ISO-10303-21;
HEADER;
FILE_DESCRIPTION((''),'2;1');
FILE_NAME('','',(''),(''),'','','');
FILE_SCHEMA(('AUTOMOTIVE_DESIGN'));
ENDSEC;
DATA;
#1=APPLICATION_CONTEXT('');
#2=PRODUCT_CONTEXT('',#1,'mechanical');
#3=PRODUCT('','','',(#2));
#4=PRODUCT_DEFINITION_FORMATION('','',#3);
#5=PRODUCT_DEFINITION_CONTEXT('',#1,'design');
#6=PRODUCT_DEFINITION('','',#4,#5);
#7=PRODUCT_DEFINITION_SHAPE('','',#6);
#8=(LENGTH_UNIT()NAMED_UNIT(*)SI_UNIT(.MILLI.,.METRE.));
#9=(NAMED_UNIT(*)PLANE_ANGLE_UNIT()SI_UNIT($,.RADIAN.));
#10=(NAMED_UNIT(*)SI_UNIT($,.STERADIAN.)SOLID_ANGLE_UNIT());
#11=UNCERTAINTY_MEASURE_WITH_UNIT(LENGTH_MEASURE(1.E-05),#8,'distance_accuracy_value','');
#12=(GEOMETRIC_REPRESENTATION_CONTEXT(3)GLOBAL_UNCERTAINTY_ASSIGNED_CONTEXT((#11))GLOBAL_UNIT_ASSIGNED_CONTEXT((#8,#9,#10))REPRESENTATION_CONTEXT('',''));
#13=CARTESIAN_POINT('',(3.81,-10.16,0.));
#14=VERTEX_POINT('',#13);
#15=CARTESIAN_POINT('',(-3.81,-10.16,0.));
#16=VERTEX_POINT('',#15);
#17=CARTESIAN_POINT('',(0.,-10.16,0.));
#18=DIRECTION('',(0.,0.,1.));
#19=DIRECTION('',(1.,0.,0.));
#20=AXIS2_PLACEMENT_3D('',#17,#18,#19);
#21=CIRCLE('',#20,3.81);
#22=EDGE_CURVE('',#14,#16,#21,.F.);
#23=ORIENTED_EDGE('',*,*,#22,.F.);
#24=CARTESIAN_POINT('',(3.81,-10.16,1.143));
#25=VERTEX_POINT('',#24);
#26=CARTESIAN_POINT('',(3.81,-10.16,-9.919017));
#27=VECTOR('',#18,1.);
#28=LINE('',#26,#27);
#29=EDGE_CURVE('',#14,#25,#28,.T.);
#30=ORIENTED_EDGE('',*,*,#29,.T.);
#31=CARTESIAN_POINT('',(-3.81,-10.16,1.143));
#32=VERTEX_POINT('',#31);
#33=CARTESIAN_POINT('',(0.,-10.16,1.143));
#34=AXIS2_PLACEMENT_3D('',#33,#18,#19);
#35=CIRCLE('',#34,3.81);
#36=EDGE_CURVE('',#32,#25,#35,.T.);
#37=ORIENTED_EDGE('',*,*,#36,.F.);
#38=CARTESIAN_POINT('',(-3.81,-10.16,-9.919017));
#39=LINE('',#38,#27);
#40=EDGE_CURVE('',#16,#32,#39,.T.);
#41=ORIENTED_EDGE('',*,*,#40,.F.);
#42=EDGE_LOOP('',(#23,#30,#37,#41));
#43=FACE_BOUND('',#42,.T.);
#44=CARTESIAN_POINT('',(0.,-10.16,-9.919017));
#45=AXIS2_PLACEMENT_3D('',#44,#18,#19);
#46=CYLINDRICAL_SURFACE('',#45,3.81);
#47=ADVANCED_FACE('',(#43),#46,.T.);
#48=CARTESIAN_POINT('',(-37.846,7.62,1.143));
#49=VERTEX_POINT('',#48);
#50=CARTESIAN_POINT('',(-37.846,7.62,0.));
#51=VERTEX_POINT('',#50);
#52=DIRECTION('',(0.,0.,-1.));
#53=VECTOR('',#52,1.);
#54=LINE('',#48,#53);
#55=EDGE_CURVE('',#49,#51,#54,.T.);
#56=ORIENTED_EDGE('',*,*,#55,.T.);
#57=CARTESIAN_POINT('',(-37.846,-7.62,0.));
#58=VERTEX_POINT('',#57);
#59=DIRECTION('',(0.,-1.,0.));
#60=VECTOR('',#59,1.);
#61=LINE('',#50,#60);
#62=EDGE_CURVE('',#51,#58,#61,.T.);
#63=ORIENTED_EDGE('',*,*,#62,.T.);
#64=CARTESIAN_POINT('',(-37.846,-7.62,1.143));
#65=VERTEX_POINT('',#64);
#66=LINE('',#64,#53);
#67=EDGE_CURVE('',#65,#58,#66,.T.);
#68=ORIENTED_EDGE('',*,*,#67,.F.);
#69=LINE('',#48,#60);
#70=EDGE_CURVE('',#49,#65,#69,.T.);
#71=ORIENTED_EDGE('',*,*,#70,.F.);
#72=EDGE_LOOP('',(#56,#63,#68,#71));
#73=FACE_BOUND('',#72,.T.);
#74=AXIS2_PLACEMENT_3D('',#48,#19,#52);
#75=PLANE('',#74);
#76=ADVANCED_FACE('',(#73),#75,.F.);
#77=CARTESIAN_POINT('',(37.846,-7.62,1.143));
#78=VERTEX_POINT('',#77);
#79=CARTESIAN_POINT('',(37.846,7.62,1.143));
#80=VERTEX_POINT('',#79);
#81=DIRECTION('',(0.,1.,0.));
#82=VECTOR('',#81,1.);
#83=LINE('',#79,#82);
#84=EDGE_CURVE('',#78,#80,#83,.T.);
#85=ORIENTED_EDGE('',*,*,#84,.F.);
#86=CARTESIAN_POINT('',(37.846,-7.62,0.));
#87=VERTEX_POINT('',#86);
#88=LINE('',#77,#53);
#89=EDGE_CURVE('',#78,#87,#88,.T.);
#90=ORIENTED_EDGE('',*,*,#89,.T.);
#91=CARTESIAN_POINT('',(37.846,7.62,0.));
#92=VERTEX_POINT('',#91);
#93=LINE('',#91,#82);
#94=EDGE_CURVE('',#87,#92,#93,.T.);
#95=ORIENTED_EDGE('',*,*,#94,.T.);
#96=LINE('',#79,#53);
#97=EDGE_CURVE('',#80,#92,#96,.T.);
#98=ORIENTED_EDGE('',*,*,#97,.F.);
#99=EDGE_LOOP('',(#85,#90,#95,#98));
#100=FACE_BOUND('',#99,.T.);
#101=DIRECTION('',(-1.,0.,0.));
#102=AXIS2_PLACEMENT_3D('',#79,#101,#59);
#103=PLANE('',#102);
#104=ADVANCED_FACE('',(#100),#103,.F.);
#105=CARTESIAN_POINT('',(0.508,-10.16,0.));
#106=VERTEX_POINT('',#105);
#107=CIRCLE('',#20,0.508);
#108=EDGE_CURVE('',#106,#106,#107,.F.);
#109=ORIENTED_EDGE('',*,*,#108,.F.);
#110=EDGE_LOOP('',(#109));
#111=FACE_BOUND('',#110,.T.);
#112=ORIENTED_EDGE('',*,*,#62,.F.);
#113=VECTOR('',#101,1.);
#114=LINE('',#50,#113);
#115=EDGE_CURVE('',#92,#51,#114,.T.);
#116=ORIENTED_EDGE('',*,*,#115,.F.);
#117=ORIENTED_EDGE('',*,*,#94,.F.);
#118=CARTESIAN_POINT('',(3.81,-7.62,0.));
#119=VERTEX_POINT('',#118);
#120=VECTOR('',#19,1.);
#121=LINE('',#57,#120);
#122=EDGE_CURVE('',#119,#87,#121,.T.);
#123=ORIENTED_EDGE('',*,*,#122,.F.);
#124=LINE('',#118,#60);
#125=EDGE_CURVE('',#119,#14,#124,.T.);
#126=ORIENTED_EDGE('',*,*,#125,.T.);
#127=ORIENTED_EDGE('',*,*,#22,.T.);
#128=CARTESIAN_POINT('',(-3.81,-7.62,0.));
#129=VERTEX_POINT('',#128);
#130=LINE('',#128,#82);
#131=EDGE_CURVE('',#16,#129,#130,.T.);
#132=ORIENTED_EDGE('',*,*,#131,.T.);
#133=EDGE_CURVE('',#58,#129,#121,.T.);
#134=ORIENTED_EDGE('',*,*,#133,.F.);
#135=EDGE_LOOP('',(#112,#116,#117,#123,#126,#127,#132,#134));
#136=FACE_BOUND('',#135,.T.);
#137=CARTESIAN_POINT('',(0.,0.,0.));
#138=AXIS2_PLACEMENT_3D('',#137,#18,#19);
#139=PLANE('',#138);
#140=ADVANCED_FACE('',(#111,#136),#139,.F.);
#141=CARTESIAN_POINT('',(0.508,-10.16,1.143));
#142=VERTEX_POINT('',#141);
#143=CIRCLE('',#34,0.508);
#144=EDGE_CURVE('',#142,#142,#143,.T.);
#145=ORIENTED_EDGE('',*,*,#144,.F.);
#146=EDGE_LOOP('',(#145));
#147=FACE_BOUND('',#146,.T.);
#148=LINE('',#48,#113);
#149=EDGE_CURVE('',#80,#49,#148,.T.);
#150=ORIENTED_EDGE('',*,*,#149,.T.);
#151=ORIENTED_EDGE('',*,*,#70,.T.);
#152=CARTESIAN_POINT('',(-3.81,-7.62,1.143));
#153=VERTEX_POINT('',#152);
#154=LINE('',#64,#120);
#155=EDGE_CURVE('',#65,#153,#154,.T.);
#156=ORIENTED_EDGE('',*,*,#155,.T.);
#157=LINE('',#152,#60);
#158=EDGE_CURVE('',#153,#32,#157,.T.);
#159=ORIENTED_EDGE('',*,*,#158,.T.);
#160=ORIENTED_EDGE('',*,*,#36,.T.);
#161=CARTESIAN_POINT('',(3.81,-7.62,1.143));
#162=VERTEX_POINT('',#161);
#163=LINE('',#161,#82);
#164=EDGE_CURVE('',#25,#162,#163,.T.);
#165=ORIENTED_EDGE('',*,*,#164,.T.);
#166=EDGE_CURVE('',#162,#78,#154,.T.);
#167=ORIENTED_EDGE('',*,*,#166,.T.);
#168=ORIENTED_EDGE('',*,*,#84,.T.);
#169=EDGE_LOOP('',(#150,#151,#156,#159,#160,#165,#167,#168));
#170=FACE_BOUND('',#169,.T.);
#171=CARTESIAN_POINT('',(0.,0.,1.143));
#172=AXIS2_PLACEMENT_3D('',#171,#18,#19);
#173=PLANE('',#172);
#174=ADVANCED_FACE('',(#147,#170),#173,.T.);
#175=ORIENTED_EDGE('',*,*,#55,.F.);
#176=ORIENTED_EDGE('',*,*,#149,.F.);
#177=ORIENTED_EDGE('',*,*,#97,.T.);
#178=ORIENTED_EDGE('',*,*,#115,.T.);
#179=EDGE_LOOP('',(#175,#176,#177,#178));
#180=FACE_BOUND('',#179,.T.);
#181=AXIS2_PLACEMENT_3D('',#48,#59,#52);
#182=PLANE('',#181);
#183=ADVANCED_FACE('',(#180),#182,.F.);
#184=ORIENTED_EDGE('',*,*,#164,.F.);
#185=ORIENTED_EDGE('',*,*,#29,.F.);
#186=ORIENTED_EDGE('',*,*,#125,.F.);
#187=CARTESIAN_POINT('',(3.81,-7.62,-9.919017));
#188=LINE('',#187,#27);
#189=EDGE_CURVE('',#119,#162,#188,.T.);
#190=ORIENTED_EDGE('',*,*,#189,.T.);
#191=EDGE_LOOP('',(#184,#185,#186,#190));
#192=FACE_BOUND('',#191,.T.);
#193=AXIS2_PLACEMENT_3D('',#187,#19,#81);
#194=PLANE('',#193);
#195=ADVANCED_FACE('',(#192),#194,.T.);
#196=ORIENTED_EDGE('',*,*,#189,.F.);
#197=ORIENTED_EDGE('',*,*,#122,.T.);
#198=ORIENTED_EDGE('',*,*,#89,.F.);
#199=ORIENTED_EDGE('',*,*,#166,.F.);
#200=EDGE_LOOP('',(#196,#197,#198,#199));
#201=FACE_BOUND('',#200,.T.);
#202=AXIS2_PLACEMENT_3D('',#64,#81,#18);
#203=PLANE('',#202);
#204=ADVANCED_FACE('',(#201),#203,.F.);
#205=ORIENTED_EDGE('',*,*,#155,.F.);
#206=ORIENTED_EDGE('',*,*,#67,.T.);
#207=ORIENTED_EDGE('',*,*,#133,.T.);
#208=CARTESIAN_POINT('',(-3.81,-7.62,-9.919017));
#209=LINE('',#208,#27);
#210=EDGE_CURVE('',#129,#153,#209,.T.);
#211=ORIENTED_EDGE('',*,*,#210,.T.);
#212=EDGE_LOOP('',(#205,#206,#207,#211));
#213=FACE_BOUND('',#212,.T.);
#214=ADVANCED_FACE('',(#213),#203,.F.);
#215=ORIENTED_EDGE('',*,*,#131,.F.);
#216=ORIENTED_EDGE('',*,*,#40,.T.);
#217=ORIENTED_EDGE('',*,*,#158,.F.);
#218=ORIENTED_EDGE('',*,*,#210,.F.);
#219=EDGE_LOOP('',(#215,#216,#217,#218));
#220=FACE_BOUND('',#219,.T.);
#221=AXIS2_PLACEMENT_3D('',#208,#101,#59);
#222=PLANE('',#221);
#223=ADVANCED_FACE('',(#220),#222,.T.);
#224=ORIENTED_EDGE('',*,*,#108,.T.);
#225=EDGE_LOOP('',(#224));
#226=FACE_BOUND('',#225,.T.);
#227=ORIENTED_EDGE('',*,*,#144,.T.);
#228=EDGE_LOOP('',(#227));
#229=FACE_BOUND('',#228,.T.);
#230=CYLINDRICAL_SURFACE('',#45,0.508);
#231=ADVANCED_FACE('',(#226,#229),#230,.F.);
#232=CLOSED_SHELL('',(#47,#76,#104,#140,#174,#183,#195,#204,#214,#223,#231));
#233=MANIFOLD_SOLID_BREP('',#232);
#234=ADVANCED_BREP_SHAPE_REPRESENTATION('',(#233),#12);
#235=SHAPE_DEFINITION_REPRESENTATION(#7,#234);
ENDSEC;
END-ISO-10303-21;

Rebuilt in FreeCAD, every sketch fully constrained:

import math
import FreeCAD as App
import Part
import Sketcher
Q = App.Units.Quantity


def add_polygon(sketch, points):
    """Adds a closed chain of lines whose ends are joined by coincident constraints."""
    first, n = sketch.GeometryCount, len(points)
    for a, b in zip(points, points[1:] + points[:1]):
        sketch.addGeometry(Part.LineSegment(App.Vector(*a, 0), App.Vector(*b, 0)), False)
    for i in range(n):
        sketch.addConstraint(Sketcher.Constraint("Coincident", first + i, 2, first + (i + 1) % n, 1))

doc = App.newDocument("Part")
body = doc.addObject("PartDesign::Body", "Body")

# Sketch on XY plane
sketch1 = body.newObject("Sketcher::SketchObject", "Sketch")
sketch1.AttachmentSupport = (doc.getObject("XY_Plane"), [""])
sketch1.MapMode = "FlatFace"
add_polygon(sketch1, [(-37.846, 7.62), (-37.846, -7.62), (37.846, -7.62), (37.846, 7.62)])  # lines 0-3
sketch1.addConstraint([
    Sketcher.Constraint("Vertical", 0),
    Sketcher.Constraint("Horizontal", 1),
    Sketcher.Constraint("Vertical", 2),
    Sketcher.Constraint("Horizontal", 3),
    Sketcher.Constraint("Symmetric", 0, 2, 2, 2, -1, 1),
    Sketcher.Constraint("DistanceY", 0, 2, 0, 1, Q("0.6 in")),
    Sketcher.Constraint("DistanceX", 1, 1, 1, 2, Q("2.98 in")),
])
pad1 = body.newObject("PartDesign::Pad", "Pad")
pad1.Profile = sketch1
pad1.Length = Q("0.045 in")

# Sketch on XY plane
sketch2 = body.newObject("Sketcher::SketchObject", "Sketch001")
sketch2.AttachmentSupport = (doc.getObject("XY_Plane"), [""])
sketch2.MapMode = "FlatFace"
sketch2.AttachmentOffset = App.Placement(App.Vector(0, 0, 0.045 * 25.4), App.Rotation())
sketch2.addGeometry([
    Part.LineSegment(App.Vector(3.81, -7.62, 0), App.Vector(-3.81, -7.62, 0)),  # 0
    Part.LineSegment(App.Vector(-3.81, -7.62, 0), App.Vector(-3.81, -10.16, 0)),  # 1
    Part.ArcOfCircle(Part.Circle(App.Vector(0, -10.16, 0), App.Vector(0, 0, 1), 3.81), math.radians(180), math.radians(360)),  # 2
    Part.LineSegment(App.Vector(3.81, -10.16, 0), App.Vector(3.81, -7.62, 0)),  # 3
    Part.Circle(App.Vector(0, -10.16, 0), App.Vector(0, 0, 1), 0.508),  # 4
], False)
sketch2.addConstraint([
    Sketcher.Constraint("Coincident", 0, 2, 1, 1),
    Sketcher.Constraint("Tangent", 1, 2, 2, 1),
    Sketcher.Constraint("Tangent", 2, 2, 3, 1),
    Sketcher.Constraint("Coincident", 3, 2, 0, 1),
    Sketcher.Constraint("Horizontal", 0),
    Sketcher.Constraint("Vertical", 1),
    Sketcher.Constraint("Vertical", 3),
    Sketcher.Constraint("Coincident", 4, 3, 2, 3),
    Sketcher.Constraint("PointOnObject", 2, 3, -2),
    Sketcher.Constraint("Diameter", 4, Q("0.04 in")),
    Sketcher.Constraint("Radius", 2, Q("0.15 in")),
    Sketcher.Constraint("DistanceY", 1, 2, 1, 1, Q("0.1 in")),
    Sketcher.Constraint("DistanceY", 2, 3, -1, 1, Q("0.4 in")),
])
pad2 = body.newObject("PartDesign::Pad", "Pad001")
pad2.Profile = sketch2
pad2.Length = Q("0.045 in")
pad2.Reversed = True

doc.recompute()
